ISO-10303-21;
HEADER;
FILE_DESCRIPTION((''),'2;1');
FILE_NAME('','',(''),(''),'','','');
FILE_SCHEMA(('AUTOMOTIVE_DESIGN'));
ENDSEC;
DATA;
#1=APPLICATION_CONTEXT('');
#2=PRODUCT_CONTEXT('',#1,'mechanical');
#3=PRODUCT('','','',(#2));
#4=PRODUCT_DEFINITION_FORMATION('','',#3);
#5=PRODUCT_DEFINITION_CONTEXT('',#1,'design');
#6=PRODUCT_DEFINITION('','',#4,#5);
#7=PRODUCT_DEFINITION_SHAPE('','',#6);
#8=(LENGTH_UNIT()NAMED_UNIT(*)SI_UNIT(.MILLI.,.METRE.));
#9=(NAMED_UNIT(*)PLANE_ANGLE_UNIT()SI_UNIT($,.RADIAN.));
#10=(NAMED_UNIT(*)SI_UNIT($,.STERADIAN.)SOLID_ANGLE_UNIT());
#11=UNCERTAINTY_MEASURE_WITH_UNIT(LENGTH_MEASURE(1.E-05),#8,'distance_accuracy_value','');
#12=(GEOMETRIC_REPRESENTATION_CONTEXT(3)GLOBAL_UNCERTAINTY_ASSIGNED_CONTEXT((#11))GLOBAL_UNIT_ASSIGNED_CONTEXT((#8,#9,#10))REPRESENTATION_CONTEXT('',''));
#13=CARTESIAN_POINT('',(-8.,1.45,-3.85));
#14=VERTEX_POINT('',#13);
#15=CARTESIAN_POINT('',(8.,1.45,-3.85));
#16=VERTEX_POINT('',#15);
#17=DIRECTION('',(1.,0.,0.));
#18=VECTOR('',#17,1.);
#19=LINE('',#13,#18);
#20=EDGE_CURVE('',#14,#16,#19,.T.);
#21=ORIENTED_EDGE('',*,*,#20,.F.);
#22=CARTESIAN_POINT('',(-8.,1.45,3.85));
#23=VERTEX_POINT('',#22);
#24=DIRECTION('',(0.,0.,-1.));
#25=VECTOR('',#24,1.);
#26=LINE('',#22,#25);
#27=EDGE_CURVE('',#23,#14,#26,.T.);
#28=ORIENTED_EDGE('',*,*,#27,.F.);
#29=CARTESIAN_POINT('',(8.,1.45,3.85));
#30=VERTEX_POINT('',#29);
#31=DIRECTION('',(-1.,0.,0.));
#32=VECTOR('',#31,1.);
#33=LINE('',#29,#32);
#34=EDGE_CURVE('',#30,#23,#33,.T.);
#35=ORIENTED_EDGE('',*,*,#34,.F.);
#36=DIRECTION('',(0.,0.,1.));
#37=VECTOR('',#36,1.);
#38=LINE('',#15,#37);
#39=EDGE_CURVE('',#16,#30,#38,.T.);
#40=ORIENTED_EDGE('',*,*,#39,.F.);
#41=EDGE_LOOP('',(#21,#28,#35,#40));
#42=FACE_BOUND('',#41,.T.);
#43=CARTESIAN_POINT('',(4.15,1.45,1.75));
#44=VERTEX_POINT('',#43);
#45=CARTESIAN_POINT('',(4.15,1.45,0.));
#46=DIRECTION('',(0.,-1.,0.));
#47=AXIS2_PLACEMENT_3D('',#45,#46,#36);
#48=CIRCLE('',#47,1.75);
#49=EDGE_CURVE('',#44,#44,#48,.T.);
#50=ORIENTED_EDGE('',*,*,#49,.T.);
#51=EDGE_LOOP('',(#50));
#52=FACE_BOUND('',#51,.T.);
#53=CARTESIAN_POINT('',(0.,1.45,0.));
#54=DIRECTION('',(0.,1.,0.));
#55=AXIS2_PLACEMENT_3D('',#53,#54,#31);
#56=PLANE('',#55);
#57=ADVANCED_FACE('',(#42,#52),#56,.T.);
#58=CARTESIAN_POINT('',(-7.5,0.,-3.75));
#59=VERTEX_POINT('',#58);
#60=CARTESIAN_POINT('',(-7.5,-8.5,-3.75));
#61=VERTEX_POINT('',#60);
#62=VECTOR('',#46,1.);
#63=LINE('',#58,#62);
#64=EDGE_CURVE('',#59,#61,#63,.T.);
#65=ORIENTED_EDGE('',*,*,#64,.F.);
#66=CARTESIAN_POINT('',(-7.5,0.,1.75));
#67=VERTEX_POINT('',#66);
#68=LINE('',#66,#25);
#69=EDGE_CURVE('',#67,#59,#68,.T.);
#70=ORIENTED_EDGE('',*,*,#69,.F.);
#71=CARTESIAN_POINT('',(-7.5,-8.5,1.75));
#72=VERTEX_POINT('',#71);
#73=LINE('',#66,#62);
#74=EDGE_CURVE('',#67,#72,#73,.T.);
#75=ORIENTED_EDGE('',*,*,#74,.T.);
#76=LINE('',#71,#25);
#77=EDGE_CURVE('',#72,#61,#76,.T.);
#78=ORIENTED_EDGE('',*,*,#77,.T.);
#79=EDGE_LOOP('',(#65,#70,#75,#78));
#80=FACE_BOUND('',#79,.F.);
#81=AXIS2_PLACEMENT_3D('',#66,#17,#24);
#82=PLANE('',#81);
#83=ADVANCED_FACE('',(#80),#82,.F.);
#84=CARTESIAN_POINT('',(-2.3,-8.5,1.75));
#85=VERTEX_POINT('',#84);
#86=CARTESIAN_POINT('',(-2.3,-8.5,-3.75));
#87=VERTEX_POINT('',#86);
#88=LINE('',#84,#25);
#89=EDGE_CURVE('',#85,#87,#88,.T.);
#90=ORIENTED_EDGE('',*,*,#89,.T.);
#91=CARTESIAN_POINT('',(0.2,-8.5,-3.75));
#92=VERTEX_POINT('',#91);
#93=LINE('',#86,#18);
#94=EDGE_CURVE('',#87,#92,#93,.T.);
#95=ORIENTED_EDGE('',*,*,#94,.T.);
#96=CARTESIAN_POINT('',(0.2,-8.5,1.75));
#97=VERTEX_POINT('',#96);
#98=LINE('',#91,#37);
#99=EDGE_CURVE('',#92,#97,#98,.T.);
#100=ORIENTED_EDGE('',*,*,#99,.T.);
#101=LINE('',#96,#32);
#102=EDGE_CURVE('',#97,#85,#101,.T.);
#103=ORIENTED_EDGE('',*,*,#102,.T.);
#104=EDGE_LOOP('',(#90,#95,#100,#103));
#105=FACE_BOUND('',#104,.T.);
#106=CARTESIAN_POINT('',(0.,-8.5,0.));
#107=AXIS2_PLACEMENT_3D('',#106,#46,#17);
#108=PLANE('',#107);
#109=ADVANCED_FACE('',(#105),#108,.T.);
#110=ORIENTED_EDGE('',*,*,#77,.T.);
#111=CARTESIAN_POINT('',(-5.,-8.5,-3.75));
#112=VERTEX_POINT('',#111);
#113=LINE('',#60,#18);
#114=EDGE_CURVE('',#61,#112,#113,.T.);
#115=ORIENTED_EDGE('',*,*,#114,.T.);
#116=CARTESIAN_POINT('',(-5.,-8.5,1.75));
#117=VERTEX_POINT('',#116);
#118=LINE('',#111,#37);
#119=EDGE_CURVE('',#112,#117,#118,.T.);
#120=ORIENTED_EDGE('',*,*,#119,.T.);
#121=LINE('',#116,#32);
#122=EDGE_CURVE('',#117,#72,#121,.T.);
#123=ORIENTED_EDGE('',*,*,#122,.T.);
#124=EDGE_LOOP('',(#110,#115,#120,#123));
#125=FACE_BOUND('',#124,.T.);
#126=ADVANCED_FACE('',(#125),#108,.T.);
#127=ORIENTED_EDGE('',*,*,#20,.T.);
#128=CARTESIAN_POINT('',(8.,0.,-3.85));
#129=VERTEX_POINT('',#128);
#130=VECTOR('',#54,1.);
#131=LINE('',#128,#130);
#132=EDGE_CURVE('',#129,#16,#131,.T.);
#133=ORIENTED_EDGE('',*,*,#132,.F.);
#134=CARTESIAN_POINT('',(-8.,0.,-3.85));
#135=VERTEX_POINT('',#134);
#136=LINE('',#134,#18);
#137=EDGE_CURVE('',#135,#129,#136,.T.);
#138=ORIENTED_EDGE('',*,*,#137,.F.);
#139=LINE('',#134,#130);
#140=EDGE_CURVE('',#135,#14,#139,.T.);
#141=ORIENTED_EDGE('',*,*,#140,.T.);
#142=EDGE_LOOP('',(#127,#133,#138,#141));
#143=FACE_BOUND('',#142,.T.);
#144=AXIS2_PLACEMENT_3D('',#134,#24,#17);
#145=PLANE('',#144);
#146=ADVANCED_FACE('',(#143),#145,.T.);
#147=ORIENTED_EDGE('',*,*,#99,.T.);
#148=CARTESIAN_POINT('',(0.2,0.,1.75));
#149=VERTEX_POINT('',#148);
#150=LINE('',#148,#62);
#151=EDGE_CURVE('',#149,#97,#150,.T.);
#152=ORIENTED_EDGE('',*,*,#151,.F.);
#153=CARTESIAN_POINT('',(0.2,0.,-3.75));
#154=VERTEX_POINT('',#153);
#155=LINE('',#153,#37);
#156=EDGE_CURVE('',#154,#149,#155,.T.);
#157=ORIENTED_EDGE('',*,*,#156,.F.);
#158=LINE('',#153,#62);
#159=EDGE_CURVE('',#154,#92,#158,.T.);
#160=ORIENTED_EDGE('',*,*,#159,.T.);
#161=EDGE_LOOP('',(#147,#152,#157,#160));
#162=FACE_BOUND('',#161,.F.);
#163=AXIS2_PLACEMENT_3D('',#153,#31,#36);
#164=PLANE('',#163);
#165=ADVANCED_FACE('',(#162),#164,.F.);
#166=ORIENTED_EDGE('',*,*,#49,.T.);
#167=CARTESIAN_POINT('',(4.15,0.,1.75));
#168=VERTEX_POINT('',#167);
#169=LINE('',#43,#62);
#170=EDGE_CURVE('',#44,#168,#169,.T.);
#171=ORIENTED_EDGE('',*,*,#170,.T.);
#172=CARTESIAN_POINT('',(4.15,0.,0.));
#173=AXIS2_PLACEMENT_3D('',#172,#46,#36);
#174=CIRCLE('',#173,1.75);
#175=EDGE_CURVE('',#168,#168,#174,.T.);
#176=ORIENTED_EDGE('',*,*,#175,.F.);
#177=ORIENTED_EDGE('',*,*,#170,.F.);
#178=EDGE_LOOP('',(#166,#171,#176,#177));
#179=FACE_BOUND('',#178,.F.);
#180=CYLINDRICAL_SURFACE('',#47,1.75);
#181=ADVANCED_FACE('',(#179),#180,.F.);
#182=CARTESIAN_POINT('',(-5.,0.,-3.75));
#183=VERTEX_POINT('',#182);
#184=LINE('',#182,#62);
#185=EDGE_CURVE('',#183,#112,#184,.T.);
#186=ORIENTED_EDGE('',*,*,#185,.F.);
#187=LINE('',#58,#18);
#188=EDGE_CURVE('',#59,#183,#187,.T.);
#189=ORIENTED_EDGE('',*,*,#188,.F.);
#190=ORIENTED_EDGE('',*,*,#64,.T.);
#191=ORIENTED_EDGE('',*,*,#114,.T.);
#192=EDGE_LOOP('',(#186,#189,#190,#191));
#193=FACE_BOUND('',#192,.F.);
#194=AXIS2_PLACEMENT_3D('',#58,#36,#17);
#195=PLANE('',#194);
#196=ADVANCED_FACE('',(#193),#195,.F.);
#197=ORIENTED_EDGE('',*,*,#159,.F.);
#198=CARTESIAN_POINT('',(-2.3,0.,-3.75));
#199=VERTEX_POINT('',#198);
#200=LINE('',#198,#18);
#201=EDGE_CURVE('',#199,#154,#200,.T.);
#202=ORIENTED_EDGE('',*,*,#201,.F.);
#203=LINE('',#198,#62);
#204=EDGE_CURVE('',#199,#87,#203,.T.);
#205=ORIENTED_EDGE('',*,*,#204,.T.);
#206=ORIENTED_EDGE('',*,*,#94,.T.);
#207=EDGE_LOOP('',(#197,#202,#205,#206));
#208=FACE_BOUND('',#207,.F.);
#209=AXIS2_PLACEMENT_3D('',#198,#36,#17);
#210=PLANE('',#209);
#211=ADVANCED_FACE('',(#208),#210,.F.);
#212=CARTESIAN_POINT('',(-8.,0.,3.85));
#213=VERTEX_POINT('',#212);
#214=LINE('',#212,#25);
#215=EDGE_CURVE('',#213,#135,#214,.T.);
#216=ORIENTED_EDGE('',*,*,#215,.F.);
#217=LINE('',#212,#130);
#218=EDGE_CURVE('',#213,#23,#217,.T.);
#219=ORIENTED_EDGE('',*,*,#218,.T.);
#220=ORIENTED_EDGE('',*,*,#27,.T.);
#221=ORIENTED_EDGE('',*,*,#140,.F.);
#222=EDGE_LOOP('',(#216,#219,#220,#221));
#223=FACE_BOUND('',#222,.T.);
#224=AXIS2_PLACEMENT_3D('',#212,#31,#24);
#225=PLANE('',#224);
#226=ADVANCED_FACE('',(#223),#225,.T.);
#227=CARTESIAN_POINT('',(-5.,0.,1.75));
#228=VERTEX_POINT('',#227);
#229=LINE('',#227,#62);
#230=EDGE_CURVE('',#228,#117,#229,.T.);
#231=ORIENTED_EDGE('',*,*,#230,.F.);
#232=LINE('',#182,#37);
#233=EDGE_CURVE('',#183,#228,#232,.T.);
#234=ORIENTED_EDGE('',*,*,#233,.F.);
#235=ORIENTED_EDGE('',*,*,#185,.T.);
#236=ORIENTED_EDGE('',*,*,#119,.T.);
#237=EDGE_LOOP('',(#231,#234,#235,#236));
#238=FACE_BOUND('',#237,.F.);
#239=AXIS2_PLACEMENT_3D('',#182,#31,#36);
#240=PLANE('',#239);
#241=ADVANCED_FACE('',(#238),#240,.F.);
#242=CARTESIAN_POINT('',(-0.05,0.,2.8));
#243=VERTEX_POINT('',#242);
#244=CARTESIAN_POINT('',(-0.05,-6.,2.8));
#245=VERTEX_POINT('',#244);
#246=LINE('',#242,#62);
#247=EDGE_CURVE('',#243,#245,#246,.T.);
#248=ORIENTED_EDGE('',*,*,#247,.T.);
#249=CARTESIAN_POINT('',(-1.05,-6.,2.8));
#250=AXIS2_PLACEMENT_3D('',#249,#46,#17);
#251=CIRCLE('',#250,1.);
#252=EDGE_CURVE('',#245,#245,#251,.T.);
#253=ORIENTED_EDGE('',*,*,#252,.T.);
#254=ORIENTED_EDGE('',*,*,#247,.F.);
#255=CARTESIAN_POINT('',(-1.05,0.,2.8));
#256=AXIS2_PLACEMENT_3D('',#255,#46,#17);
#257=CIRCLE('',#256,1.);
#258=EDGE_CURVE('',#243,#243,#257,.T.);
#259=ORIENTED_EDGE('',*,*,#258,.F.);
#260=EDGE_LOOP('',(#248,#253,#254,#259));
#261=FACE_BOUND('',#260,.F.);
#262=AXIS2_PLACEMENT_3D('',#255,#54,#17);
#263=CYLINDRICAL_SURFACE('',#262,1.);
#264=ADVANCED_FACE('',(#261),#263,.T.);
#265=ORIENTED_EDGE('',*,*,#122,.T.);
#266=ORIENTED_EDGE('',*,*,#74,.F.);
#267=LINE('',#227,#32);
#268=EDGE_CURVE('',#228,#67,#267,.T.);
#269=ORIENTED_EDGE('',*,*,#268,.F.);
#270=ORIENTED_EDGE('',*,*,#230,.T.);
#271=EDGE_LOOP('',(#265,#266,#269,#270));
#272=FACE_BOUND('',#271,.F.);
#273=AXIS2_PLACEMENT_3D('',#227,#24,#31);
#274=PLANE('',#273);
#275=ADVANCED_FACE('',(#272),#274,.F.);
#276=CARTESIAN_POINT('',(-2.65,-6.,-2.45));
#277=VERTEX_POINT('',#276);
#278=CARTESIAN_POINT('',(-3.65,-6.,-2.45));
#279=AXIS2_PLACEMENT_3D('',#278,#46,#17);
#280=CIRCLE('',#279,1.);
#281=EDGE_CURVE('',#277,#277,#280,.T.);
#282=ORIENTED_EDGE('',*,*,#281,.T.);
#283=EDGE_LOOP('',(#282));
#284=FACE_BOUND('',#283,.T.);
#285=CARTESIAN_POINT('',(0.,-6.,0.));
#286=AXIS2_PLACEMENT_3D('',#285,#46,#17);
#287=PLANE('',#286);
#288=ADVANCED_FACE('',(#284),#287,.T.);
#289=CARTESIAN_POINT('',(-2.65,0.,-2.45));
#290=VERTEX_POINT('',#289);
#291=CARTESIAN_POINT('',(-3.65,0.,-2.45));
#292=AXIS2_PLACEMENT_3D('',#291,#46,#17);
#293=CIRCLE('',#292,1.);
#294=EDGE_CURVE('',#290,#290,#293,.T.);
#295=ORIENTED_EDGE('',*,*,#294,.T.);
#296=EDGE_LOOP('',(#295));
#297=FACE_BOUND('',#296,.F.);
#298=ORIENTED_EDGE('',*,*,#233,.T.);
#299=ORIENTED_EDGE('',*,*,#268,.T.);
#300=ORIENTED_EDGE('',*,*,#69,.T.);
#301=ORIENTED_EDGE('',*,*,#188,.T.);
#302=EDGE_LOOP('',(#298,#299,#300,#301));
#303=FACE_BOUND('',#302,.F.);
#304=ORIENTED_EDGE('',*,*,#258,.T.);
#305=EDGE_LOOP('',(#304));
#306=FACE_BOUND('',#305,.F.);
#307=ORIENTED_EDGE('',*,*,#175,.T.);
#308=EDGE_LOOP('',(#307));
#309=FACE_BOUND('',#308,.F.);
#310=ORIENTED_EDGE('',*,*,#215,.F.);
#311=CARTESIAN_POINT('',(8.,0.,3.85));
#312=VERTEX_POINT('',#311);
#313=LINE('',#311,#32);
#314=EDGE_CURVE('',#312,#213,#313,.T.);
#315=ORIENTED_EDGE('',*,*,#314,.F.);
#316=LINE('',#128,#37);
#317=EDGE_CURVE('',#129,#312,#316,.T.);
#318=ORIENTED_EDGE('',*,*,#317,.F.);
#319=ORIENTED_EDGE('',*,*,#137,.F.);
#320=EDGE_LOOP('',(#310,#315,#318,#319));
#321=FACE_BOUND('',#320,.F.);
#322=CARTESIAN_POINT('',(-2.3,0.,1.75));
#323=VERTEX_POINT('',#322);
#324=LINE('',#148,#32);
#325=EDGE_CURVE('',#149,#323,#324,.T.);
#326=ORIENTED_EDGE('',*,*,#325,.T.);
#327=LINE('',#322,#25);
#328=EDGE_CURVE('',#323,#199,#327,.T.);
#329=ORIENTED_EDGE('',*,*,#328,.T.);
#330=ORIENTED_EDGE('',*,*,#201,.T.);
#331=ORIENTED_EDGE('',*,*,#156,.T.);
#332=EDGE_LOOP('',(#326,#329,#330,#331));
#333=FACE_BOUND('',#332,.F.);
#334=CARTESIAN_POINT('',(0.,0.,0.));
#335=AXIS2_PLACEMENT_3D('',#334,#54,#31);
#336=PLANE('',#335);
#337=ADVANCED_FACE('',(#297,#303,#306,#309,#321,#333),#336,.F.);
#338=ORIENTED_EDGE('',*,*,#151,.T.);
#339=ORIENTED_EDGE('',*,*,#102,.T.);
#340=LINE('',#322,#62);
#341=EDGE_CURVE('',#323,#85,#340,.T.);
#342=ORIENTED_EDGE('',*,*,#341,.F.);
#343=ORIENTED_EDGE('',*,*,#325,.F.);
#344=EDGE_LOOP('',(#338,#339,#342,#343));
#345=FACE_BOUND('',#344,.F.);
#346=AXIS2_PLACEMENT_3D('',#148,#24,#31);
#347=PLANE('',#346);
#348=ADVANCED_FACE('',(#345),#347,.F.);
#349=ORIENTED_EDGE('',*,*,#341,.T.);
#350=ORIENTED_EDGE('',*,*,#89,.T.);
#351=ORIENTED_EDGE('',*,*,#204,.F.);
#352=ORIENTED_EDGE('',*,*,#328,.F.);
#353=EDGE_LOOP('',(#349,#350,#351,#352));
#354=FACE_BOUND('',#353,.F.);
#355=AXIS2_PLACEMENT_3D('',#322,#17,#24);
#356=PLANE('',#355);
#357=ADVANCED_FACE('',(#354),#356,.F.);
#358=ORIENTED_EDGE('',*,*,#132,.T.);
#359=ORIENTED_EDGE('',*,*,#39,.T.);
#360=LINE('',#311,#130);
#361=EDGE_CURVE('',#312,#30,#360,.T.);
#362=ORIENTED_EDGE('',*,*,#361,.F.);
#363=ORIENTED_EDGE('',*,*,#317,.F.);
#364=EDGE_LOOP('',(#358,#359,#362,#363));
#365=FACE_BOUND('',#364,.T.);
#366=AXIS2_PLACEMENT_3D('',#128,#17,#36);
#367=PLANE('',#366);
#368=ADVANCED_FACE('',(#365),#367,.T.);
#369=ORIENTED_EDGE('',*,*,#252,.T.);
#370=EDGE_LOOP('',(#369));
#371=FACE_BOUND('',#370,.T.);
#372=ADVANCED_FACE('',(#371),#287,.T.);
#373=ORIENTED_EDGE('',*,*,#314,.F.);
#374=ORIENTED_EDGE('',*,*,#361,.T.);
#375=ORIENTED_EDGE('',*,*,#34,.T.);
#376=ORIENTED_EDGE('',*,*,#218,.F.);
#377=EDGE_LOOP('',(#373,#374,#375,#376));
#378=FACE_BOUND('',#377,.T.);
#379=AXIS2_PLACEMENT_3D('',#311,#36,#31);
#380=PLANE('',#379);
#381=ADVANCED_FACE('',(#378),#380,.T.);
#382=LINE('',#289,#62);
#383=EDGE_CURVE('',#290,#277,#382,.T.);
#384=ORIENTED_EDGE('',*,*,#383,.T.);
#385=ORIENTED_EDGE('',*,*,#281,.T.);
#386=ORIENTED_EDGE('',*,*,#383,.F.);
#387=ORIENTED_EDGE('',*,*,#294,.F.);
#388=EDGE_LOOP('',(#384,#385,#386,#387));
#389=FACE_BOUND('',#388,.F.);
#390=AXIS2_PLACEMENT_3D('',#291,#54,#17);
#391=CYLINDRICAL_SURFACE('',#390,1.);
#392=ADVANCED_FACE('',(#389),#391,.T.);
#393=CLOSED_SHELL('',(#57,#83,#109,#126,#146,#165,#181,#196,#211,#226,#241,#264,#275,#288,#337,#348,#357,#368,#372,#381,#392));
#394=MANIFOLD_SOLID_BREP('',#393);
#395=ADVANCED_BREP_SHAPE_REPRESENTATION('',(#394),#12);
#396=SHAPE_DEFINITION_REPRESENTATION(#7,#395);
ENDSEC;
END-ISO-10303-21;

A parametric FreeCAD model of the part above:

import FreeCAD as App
import Part
import Sketcher

V = App.Vector

doc = App.newDocument("Part")
body = doc.addObject("PartDesign::Body", "Body")

sketch1 = body.newObject("Sketcher::SketchObject", "Sketch")
sketch1.AttachmentSupport = (doc.getObject("XZ_Plane"), [""])
sketch1.MapMode = "FlatFace"
sketch1.addGeometry(Part.LineSegment(V(8, -4, 0), V(-8, -4, 0)), False)
sketch1.addGeometry(Part.LineSegment(V(-8, -4, 0), V(-8, 4, 0)), False)
sketch1.addGeometry(Part.LineSegment(V(-8, 4, 0), V(8, 4, 0)), False)
sketch1.addGeometry(Part.LineSegment(V(8, 4, 0), V(8, -4, 0)), False)
sketch1.addConstraint(Sketcher.Constraint("Coincident", 0, 2, 1, 1))
sketch1.addConstraint(Sketcher.Constraint("Coincident", 1, 2, 2, 1))
sketch1.addConstraint(Sketcher.Constraint("Coincident", 2, 2, 3, 1))
sketch1.addConstraint(Sketcher.Constraint("Coincident", 3, 2, 0, 1))
sketch1.addConstraint(Sketcher.Constraint("Horizontal", 0))
sketch1.addConstraint(Sketcher.Constraint("Vertical", 1))
sketch1.addConstraint(Sketcher.Constraint("Horizontal", 2))
sketch1.addConstraint(Sketcher.Constraint("Vertical", 3))
sketch1.addConstraint(Sketcher.Constraint("Symmetric", 0, 2, 2, 2, -1, 1))
sketch1.addConstraint(Sketcher.Constraint("DistanceX", 0, 2, 0, 1, 16.0))
sketch1.addConstraint(Sketcher.Constraint("DistanceY", 1, 1, 1, 2, 7.7))
pad1 = body.newObject("PartDesign::Pad", "Pad")
pad1.Profile = sketch1
pad1.Length = 1.45
pad1.Reversed = True

sketch2 = body.newObject("Sketcher::SketchObject", "Sketch001")
sketch2.AttachmentSupport = (doc.getObject("XZ_Plane"), [""])
sketch2.MapMode = "FlatFace"
sketch2.addGeometry(Part.LineSegment(V(0.2, -3.8, 0), V(0.2, 1.8, 0)), False)
sketch2.addGeometry(Part.LineSegment(V(0.2, 1.8, 0), V(-2.3, 1.8, 0)), False)
sketch2.addGeometry(Part.LineSegment(V(-2.3, 1.8, 0), V(-2.3, -3.8, 0)), False)
sketch2.addGeometry(Part.LineSegment(V(-2.3, -3.8, 0), V(0.2, -3.8, 0)), False)
sketch2.addGeometry(Part.LineSegment(V(-5, -3.8, 0), V(-5, 1.8, 0)), False)
sketch2.addGeometry(Part.LineSegment(V(-5, 1.8, 0), V(-7.5, 1.8, 0)), False)
sketch2.addGeometry(Part.LineSegment(V(-7.5, 1.8, 0), V(-7.5, -3.8, 0)), False)
sketch2.addGeometry(Part.LineSegment(V(-7.5, -3.8, 0), V(-5, -3.8, 0)), False)
sketch2.addConstraint(Sketcher.Constraint("Coincident", 0, 2, 1, 1))
sketch2.addConstraint(Sketcher.Constraint("Coincident", 1, 2, 2, 1))
sketch2.addConstraint(Sketcher.Constraint("Coincident", 2, 2, 3, 1))
sketch2.addConstraint(Sketcher.Constraint("Coincident", 3, 2, 0, 1))
sketch2.addConstraint(Sketcher.Constraint("Coincident", 4, 2, 5, 1))
sketch2.addConstraint(Sketcher.Constraint("Coincident", 5, 2, 6, 1))
sketch2.addConstraint(Sketcher.Constraint("Coincident", 6, 2, 7, 1))
sketch2.addConstraint(Sketcher.Constraint("Coincident", 7, 2, 4, 1))
sketch2.addConstraint(Sketcher.Constraint("Vertical", 0))
sketch2.addConstraint(Sketcher.Constraint("Horizontal", 1))
sketch2.addConstraint(Sketcher.Constraint("Vertical", 2))
sketch2.addConstraint(Sketcher.Constraint("Horizontal", 3))
sketch2.addConstraint(Sketcher.Constraint("Vertical", 4))
sketch2.addConstraint(Sketcher.Constraint("Horizontal", 5))
sketch2.addConstraint(Sketcher.Constraint("Vertical", 6))
sketch2.addConstraint(Sketcher.Constraint("Horizontal", 7))
sketch2.addConstraint(Sketcher.Constraint("Horizontal", 1, 2, 4, 2))
sketch2.addConstraint(Sketcher.Constraint("Horizontal", 3, 2, 6, 2))
sketch2.addConstraint(Sketcher.Constraint("Equal", 3, 5))
sketch2.addConstraint(Sketcher.Constraint("DistanceX", 1, 2, 1, 1, 2.5))
sketch2.addConstraint(Sketcher.Constraint("DistanceY", 0, 1, 0, 2, 5.5))
sketch2.addConstraint(Sketcher.Constraint("DistanceX", 4, 2, 1, 2, 2.7))
sketch2.addConstraint(Sketcher.Constraint("DistanceX", 4, 2, -1, 1, 5.0))
sketch2.addConstraint(Sketcher.Constraint("DistanceY", -1, 1, 0, 2, 1.75))
pad2 = body.newObject("PartDesign::Pad", "Pad001")
pad2.Profile = sketch2
pad2.Length = 8.5

sketch3 = body.newObject("Sketcher::SketchObject", "Sketch002")
sketch3.AttachmentSupport = (doc.getObject("XZ_Plane"), [""])
sketch3.MapMode = "FlatFace"
sketch3.addGeometry(Part.Circle(V(-3.6, -2.5, 0), V(0, 0, 1), 1), False)
sketch3.addGeometry(Part.Circle(V(-1.1, 2.8, 0), V(0, 0, 1), 1), False)
sketch3.addConstraint(Sketcher.Constraint("Equal", 0, 1))
sketch3.addConstraint(Sketcher.Constraint("Diameter", 0, 2.0))
sketch3.addConstraint(Sketcher.Constraint("DistanceY", -1, 1, 1, 3, 2.8))
sketch3.addConstraint(Sketcher.Constraint("DistanceX", 0, 3, 1, 3, 2.6))
sketch3.addConstraint(Sketcher.Constraint("DistanceX", 0, 3, -1, 1, 3.65))
sketch3.addConstraint(Sketcher.Constraint("DistanceY", 0, 3, -1, 1, 2.45))
pad3 = body.newObject("PartDesign::Pad", "Pad002")
pad3.Profile = sketch3
pad3.Length = 6

sketch4 = body.newObject("Sketcher::SketchObject", "Sketch003")
sketch4.AttachmentSupport = (doc.getObject("XZ_Plane"), [""])
sketch4.MapMode = "FlatFace"
sketch4.AttachmentOffset = App.Placement(V(0, 0, -1.45), App.Rotation())
sketch4.addGeometry(Part.Circle(V(4.2, 0, 0), V(0, 0, 1), 1.8), False)
sketch4.addConstraint(Sketcher.Constraint("PointOnObject", 0, 3, -1))
sketch4.addConstraint(Sketcher.Constraint("Diameter", 0, 3.5))
sketch4.addConstraint(Sketcher.Constraint("DistanceX", -1, 1, 0, 3, 4.15))
doc.recompute()
hole = body.newObject("PartDesign::Hole", "Hole")
hole.Profile = sketch4
hole.ThreadType = "None"
hole.Diameter = 3.5
hole.DepthType = "ThroughAll"
hole.Reversed = True

doc.recompute()
